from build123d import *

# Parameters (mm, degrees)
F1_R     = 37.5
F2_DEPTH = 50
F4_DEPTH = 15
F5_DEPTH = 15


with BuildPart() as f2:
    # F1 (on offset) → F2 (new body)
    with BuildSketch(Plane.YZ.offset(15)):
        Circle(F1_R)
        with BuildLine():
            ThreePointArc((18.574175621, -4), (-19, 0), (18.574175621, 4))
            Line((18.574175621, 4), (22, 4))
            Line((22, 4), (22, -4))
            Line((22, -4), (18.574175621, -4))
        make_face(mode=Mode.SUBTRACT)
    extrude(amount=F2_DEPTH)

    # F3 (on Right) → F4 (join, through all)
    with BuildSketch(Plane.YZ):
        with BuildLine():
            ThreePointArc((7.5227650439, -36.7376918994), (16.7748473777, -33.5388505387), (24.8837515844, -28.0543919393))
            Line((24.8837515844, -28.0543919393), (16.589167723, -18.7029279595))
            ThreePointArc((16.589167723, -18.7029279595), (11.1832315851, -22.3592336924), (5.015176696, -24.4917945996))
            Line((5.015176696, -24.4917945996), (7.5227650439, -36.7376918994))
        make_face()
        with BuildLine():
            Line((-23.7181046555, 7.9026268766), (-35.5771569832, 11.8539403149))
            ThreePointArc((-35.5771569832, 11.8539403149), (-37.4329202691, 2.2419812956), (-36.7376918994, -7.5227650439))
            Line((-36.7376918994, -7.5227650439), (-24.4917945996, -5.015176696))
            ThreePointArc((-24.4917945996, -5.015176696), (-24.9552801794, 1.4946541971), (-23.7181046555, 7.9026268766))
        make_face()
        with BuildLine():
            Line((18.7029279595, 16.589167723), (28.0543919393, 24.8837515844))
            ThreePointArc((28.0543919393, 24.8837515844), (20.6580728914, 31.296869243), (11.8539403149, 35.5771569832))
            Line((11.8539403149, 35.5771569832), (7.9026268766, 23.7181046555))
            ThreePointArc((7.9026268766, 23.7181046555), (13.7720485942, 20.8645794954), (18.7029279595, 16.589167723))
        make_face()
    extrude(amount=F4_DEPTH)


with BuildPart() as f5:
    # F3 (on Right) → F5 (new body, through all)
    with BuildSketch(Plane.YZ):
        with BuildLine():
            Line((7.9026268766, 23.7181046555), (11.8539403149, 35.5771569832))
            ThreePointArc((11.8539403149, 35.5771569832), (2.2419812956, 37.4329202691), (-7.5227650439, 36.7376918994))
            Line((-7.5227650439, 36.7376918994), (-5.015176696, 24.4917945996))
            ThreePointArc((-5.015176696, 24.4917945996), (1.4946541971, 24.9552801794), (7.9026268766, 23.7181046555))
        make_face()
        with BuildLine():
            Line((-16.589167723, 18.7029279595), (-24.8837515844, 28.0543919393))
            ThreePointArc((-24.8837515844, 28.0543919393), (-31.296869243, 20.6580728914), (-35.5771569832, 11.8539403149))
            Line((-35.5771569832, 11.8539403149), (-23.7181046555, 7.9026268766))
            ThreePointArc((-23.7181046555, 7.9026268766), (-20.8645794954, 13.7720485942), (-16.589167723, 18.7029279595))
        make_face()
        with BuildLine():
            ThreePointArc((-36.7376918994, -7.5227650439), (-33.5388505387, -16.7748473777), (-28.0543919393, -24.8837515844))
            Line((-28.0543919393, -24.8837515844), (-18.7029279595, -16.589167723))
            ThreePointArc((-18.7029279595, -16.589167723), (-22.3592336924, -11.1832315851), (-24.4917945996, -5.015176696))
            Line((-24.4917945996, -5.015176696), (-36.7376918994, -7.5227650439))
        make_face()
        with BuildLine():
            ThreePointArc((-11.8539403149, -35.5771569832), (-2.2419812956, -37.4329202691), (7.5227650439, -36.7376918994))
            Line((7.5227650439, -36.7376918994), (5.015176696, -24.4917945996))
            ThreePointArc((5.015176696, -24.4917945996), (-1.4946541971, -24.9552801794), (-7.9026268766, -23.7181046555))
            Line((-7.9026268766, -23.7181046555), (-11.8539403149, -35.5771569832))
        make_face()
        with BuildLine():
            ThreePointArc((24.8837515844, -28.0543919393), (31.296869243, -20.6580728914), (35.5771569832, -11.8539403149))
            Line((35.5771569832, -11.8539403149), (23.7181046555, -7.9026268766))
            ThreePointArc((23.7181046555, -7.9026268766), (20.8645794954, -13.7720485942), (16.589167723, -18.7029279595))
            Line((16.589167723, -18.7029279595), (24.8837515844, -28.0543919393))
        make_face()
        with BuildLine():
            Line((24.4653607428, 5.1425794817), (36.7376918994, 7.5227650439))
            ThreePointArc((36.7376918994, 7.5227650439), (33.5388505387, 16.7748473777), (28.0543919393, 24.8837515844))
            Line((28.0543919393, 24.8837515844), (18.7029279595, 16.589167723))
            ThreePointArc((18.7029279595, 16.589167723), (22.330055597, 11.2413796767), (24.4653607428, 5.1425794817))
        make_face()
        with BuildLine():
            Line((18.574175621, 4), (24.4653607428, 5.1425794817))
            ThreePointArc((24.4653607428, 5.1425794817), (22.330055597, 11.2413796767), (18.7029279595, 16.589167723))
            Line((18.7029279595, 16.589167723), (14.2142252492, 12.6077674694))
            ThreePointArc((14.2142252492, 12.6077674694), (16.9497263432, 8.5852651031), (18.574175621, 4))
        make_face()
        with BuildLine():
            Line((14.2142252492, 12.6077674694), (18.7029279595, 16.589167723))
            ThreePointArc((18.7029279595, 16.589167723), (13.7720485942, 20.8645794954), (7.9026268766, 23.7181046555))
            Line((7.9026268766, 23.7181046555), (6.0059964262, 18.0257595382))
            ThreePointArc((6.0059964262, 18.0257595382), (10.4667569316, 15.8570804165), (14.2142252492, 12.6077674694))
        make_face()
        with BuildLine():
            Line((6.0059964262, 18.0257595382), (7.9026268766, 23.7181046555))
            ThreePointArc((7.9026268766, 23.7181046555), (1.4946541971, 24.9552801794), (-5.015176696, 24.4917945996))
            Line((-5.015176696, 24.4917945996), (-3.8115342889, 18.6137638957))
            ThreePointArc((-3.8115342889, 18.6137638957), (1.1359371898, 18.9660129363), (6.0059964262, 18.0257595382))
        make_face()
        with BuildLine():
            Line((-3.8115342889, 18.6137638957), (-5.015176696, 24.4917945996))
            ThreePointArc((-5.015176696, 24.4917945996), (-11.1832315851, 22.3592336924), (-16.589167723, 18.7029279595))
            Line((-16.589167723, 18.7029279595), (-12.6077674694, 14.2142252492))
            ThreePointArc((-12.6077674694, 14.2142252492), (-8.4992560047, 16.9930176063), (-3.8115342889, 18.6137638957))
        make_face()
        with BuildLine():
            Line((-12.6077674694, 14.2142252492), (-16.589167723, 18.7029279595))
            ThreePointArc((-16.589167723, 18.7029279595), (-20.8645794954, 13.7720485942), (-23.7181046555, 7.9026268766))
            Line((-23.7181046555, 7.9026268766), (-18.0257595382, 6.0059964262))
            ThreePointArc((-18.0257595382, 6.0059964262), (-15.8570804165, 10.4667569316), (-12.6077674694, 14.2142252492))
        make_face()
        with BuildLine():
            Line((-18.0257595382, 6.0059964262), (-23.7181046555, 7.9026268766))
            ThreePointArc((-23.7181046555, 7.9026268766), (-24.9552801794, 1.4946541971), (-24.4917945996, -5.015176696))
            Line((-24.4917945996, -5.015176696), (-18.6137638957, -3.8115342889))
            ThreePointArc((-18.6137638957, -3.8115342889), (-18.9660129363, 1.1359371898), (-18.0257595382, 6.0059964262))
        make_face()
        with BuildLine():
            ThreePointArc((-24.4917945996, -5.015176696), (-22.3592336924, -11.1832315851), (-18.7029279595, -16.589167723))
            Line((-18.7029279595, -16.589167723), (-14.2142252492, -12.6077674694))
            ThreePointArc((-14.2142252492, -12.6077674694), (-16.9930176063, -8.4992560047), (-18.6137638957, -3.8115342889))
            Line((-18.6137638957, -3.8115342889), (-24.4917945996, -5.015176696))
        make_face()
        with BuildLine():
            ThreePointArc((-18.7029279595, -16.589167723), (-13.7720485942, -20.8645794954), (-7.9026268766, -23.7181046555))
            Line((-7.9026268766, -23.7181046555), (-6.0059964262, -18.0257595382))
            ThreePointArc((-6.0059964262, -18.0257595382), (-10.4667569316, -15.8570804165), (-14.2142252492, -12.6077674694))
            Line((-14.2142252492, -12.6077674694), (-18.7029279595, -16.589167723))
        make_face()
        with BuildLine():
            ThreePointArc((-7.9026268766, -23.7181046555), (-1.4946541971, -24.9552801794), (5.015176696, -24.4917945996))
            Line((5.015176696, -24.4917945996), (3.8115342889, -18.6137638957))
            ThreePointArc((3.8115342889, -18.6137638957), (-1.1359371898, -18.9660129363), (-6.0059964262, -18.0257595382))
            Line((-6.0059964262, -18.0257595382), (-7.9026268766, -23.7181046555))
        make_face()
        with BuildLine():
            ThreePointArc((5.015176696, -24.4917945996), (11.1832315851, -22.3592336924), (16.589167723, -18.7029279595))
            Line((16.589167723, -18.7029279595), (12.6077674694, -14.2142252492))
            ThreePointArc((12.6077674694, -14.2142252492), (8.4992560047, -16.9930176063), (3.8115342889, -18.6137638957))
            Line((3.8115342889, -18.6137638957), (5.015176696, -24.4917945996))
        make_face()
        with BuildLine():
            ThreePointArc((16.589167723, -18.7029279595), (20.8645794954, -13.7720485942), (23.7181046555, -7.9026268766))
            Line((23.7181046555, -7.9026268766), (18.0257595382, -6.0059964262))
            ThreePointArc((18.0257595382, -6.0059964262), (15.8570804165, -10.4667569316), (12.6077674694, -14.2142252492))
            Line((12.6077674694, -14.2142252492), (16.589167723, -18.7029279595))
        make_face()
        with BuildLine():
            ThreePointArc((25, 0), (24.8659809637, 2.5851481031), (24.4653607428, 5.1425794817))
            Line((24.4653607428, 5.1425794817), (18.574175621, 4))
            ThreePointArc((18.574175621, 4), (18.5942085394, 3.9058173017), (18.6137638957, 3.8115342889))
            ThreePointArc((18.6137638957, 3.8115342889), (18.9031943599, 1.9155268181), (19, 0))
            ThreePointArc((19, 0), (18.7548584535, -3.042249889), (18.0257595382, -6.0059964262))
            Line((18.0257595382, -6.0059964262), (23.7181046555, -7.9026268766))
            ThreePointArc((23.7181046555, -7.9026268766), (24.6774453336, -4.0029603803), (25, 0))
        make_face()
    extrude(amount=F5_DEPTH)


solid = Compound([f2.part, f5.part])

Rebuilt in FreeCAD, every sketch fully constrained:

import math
import FreeCAD as App
import Part
import Sketcher

doc = App.newDocument("Part")
body = doc.addObject("PartDesign::Body", "Body")

sketch1 = body.newObject("Sketcher::SketchObject", "Sketch")
sketch1.AttachmentSupport = (doc.getObject("YZ_Plane"), [""])
sketch1.MapMode = "FlatFace"
sketch1.AttachmentOffset = App.Placement(App.Vector(0, 0, 15), App.Rotation())
sketch1.addGeometry([
    Part.Circle(App.Vector(0, 0, 0), App.Vector(0, 0, 1), 37.5),
    Part.LineSegment(App.Vector(22, -4, 0), App.Vector(18.6, -4, 0)),
    Part.ArcOfCircle(Part.Circle(App.Vector(0, 0, 0), App.Vector(0, 0, 1), 19), math.radians(12), math.radians(348)),
    Part.LineSegment(App.Vector(18.6, 4, 0), App.Vector(22, 4, 0)),
    Part.LineSegment(App.Vector(22, 4, 0), App.Vector(22, -4, 0)),
], False)
sketch1.addConstraint([
    Sketcher.Constraint("Coincident", 1, 2, 2, 2),
    Sketcher.Constraint("Coincident", 2, 1, 3, 1),
    Sketcher.Constraint("Coincident", 3, 2, 4, 1),
    Sketcher.Constraint("Coincident", 4, 2, 1, 1),
    Sketcher.Constraint("Horizontal", 1),
    Sketcher.Constraint("Horizontal", 3),
    Sketcher.Constraint("Vertical", 4),
    Sketcher.Constraint("Coincident", 0, 3, -1, 1),
    Sketcher.Constraint("Coincident", 2, 3, -1, 1),
    Sketcher.Constraint("Vertical", 1, 2, 2, 1),
    Sketcher.Constraint("Diameter", 0, 75.0),
    Sketcher.Constraint("Radius", 2, 19.0),
    Sketcher.Constraint("DistanceY", 4, 2, 4, 1, 8.0),
    Sketcher.Constraint("DistanceX", -1, 1, 3, 2, 22.0),
])
pad1 = body.newObject("PartDesign::Pad", "Pad")
pad1.Profile = sketch1
pad1.Length = 50

sketch2 = body.newObject("Sketcher::SketchObject", "Sketch001")
sketch2.AttachmentSupport = (doc.getObject("YZ_Plane"), [""])
sketch2.MapMode = "FlatFace"
sketch2.addGeometry([
    Part.ArcOfCircle(Part.Circle(App.Vector(0, 0, 0), App.Vector(0, 0, 1), 37), math.radians(-78), math.radians(-48)),
    Part.LineSegment(App.Vector(25, -28, 0), App.Vector(17, -19, 0)),
    Part.ArcOfCircle(Part.Circle(App.Vector(0, 0, 0), App.Vector(0, 0, 1), 25), math.radians(-78), math.radians(-48)),
    Part.LineSegment(App.Vector(5, -24, 0), App.Vector(8, -37, 0)),
    Part.LineSegment(App.Vector(-24, 8, 0), App.Vector(-36, 12, 0)),
    Part.ArcOfCircle(Part.Circle(App.Vector(0, 0, 0), App.Vector(0, 0, 1), 37), math.radians(162), math.radians(192)),
    Part.LineSegment(App.Vector(-37, -8, 0), App.Vector(-24, -5, 0)),
    Part.ArcOfCircle(Part.Circle(App.Vector(0, 0, 0), App.Vector(0, 0, 1), 25), math.radians(162), math.radians(192)),
    Part.LineSegment(App.Vector(19, 17, 0), App.Vector(28, 25, 0)),
    Part.ArcOfCircle(Part.Circle(App.Vector(0, 0, 0), App.Vector(0, 0, 1), 37), math.radians(42), math.radians(72)),
    Part.LineSegment(App.Vector(12, 36, 0), App.Vector(8, 24, 0)),
    Part.ArcOfCircle(Part.Circle(App.Vector(0, 0, 0), App.Vector(0, 0, 1), 25), math.radians(42), math.radians(72)),
], False)
sketch2.addConstraint([
    Sketcher.Constraint("Coincident", 0, 2, 1, 1),
    Sketcher.Constraint("Coincident", 1, 2, 2, 2),
    Sketcher.Constraint("Coincident", 2, 1, 3, 1),
    Sketcher.Constraint("Coincident", 3, 2, 0, 1),
    Sketcher.Constraint("Coincident", 4, 2, 5, 1),
    Sketcher.Constraint("Coincident", 5, 2, 6, 1),
    Sketcher.Constraint("Coincident", 6, 2, 7, 2),
    Sketcher.Constraint("Coincident", 7, 1, 4, 1),
    Sketcher.Constraint("Coincident", 8, 2, 9, 1),
    Sketcher.Constraint("Coincident", 9, 2, 10, 1),
    Sketcher.Constraint("Coincident", 10, 2, 11, 2),
    Sketcher.Constraint("Coincident", 11, 1, 8, 1),
    Sketcher.Constraint("Coincident", 0, 3, -1, 1),
    Sketcher.Constraint("Coincident", 2, 3, -1, 1),
    Sketcher.Constraint("Coincident", 5, 3, -1, 1),
    Sketcher.Constraint("Coincident", 7, 3, -1, 1),
    Sketcher.Constraint("Coincident", 9, 3, -1, 1),
    Sketcher.Constraint("Coincident", 11, 3, -1, 1),
    Sketcher.Constraint("Equal", 0, 5),
    Sketcher.Constraint("Equal", 2, 7),
    Sketcher.Constraint("Equal", 5, 9),
    Sketcher.Constraint("Equal", 7, 11),
    Sketcher.Constraint("Perpendicular", 3, 6),
    Sketcher.Constraint("Perpendicular", 1, 8),
    Sketcher.Constraint("Perpendicular", 4, 10),
    Sketcher.Constraint("Radius", 2, 25.0),
    Sketcher.Constraint("Radius", 0, 37.5),
    Sketcher.Constraint("DistanceY", 3, 2, 0, 2, 8.6833),
    Sketcher.Constraint("DistanceX", 10, 2, 11, 1, 10.800301),
    Sketcher.Constraint("DistanceX", -1, 1, 0, 2, 24.883752),
    Sketcher.Constraint("DistanceY", -1, 1, 4, 2, 11.85394),
    Sketcher.Constraint("DistanceX", 5, 2, -1, 1, 36.737692),
    Sketcher.Constraint("DistanceX", -1, 1, 8, 2, 28.054392),
    Sketcher.Constraint("DistanceX", -1, 1, 9, 2, 11.85394),
    Sketcher.Constraint("DistanceX", 2, 1, 1, 2, 11.573991),
    Sketcher.Constraint("DistanceX", 2, 1, 3, 2, 2.507588),
])
pad2 = body.newObject("PartDesign::Pad", "Pad001")
pad2.Profile = sketch2
pad2.Length = 15
body2 = doc.addObject("PartDesign::Body", "Body001")

sketch3 = body2.newObject("Sketcher::SketchObject", "Sketch002")
sketch3.AttachmentSupport = (doc.getObject("YZ_Plane001"), [""])
sketch3.MapMode = "FlatFace"
sketch3.addGeometry([
    Part.LineSegment(App.Vector(7.9, 23.72, 0), App.Vector(11.85, 35.58, 0)),
    Part.ArcOfCircle(Part.Circle(App.Vector(0, 0, 0), App.Vector(0, 0, 1), 37.5), math.radians(72), math.radians(102)),
    Part.LineSegment(App.Vector(-7.52, 36.74, 0), App.Vector(-5.02, 24.49, 0)),
    Part.ArcOfCircle(Part.Circle(App.Vector(0, 0, 0), App.Vector(0, 0, 1), 25), math.radians(102), math.radians(132)),
    Part.LineSegment(App.Vector(-16.59, 18.7, 0), App.Vector(-24.88, 28.05, 0)),
    Part.ArcOfCircle(Part.Circle(App.Vector(0, 0, 0), App.Vector(0, 0, 1), 37.5), math.radians(132), math.radians(162)),
    Part.LineSegment(App.Vector(-35.58, 11.85, 0), App.Vector(-23.72, 7.9, 0)),
    Part.ArcOfCircle(Part.Circle(App.Vector(0, 0, 0), App.Vector(0, 0, 1), 25), math.radians(162), math.radians(192)),
    Part.LineSegment(App.Vector(-24.49, -5.02, 0), App.Vector(-36.74, -7.52, 0)),
    Part.ArcOfCircle(Part.Circle(App.Vector(0, 0, 0), App.Vector(0, 0, 1), 37.5), math.radians(-168), math.radians(-138)),
    Part.LineSegment(App.Vector(-28.05, -24.88, 0), App.Vector(-18.7, -16.59, 0)),
    Part.ArcOfCircle(Part.Circle(App.Vector(0, 0, 0), App.Vector(0, 0, 1), 25), math.radians(-138), math.radians(-108)),
    Part.LineSegment(App.Vector(-7.9, -23.72, 0), App.Vector(-11.85, -35.58, 0)),
    Part.ArcOfCircle(Part.Circle(App.Vector(0, 0, 0), App.Vector(0, 0, 1), 37.5), math.radians(-108), math.radians(-78)),
    Part.LineSegment(App.Vector(7.52, -36.74, 0), App.Vector(5.02, -24.49, 0)),
    Part.ArcOfCircle(Part.Circle(App.Vector(0, 0, 0), App.Vector(0, 0, 1), 25), math.radians(-78), math.radians(-48)),
    Part.LineSegment(App.Vector(16.59, -18.7, 0), App.Vector(24.88, -28.05, 0)),
    Part.ArcOfCircle(Part.Circle(App.Vector(0, 0, 0), App.Vector(0, 0, 1), 37.5), math.radians(-48), math.radians(-18)),
    Part.LineSegment(App.Vector(35.58, -11.85, 0), App.Vector(23.72, -7.9, 0)),
    Part.ArcOfCircle(Part.Circle(App.Vector(0, 0, 0), App.Vector(0, 0, 1), 25), math.radians(-18.43), math.radians(0)),
    Part.ArcOfCircle(Part.Circle(App.Vector(0, 0, 0), App.Vector(0, 0, 1), 25), math.radians(0), math.radians(11.87)),
    Part.LineSegment(App.Vector(24.47, 5.14, 0), App.Vector(36.74, 7.52, 0)),
    Part.ArcOfCircle(Part.Circle(App.Vector(0, 0, 0), App.Vector(0, 0, 1), 37.5), math.radians(12), math.radians(42)),
    Part.LineSegment(App.Vector(28.05, 24.88, 0), App.Vector(18.7, 16.59, 0)),
    Part.ArcOfCircle(Part.Circle(App.Vector(0, 0, 0), App.Vector(0, 0, 1), 25), math.radians(42), math.radians(72)),
    Part.ArcOfCircle(Part.Circle(App.Vector(0, 0, 0), App.Vector(0, 0, 1), 19), math.radians(-48), math.radians(-18)),
    Part.ArcOfCircle(Part.Circle(App.Vector(0, 0, 0), App.Vector(0, 0, 1), 19), math.radians(-78), math.radians(-48)),
    Part.ArcOfCircle(Part.Circle(App.Vector(0, 0, 0), App.Vector(0, 0, 1), 19), math.radians(-108), math.radians(-78)),
    Part.ArcOfCircle(Part.Circle(App.Vector(0, 0, 0), App.Vector(0, 0, 1), 19), math.radians(-138), math.radians(-108)),
    Part.ArcOfCircle(Part.Circle(App.Vector(0, 0, 0), App.Vector(0, 0, 1), 19), math.radians(-168), math.radians(-138)),
    Part.ArcOfCircle(Part.Circle(App.Vector(0, 0, 0), App.Vector(0, 0, 1), 19), math.radians(162), math.radians(192)),
    Part.ArcOfCircle(Part.Circle(App.Vector(0, 0, 0), App.Vector(0, 0, 1), 19), math.radians(132), math.radians(162)),
    Part.ArcOfCircle(Part.Circle(App.Vector(0, 0, 0), App.Vector(0, 0, 1), 19), math.radians(102), math.radians(132)),
    Part.ArcOfCircle(Part.Circle(App.Vector(0, 0, 0), App.Vector(0, 0, 1), 19), math.radians(72), math.radians(102)),
    Part.ArcOfCircle(Part.Circle(App.Vector(0, 0, 0), App.Vector(0, 0, 1), 19), math.radians(42), math.radians(72)),
    Part.ArcOfCircle(Part.Circle(App.Vector(0, 0, 0), App.Vector(0, 0, 1), 19), math.radians(12), math.radians(42)),
    Part.ArcOfCircle(Part.Circle(App.Vector(0, 0, 0), App.Vector(0, 0, 1), 19), math.radians(11.57), math.radians(12.15)),
    Part.ArcOfCircle(Part.Circle(App.Vector(0, 0, 0), App.Vector(0, 0, 1), 19), math.radians(0), math.radians(11.57)),
    Part.ArcOfCircle(Part.Circle(App.Vector(0, 0, 0), App.Vector(0, 0, 1), 19), math.radians(-18.43), math.radians(0)),
], False)
sketch3.addConstraint([
    Sketcher.Constraint("Coincident", 0, 2, 1, 1),
    Sketcher.Constraint("Coincident", 1, 2, 2, 1),
    Sketcher.Constraint("Coincident", 2, 2, 3, 1),
    Sketcher.Constraint("Coincident", 3, 2, 4, 1),
    Sketcher.Constraint("Coincident", 4, 2, 5, 1),
    Sketcher.Constraint("Coincident", 5, 2, 6, 1),
    Sketcher.Constraint("Coincident", 6, 2, 7, 1),
    Sketcher.Constraint("Coincident", 7, 2, 8, 1),
    Sketcher.Constraint("Coincident", 8, 2, 9, 1),
    Sketcher.Constraint("Coincident", 9, 2, 10, 1),
    Sketcher.Constraint("Coincident", 10, 2, 11, 1),
    Sketcher.Constraint("Coincident", 11, 2, 12, 1),
    Sketcher.Constraint("Coincident", 12, 2, 13, 1),
    Sketcher.Constraint("Coincident", 13, 2, 14, 1),
    Sketcher.Constraint("Coincident", 14, 2, 15, 1),
    Sketcher.Constraint("Coincident", 15, 2, 16, 1),
    Sketcher.Constraint("Coincident", 16, 2, 17, 1),
    Sketcher.Constraint("Coincident", 17, 2, 18, 1),
    Sketcher.Constraint("Coincident", 18, 2, 19, 1),
    Sketcher.Constraint("Tangent", 19, 2, 20, 1),
    Sketcher.Constraint("Coincident", 20, 2, 21, 1),
    Sketcher.Constraint("Coincident", 21, 2, 22, 1),
    Sketcher.Constraint("Coincident", 22, 2, 23, 1),
    Sketcher.Constraint("Coincident", 23, 2, 24, 1),
    Sketcher.Constraint("Coincident", 24, 2, 0, 1),
    Sketcher.Constraint("Tangent", 25, 1, 26, 2),
    Sketcher.Constraint("Tangent", 26, 1, 27, 2),
    Sketcher.Constraint("Tangent", 27, 1, 28, 2),
    Sketcher.Constraint("Tangent", 28, 1, 29, 2),
    Sketcher.Constraint("Tangent", 29, 1, 30, 2),
    Sketcher.Constraint("Tangent", 30, 1, 31, 2),
    Sketcher.Constraint("Tangent", 31, 1, 32, 2),
    Sketcher.Constraint("Tangent", 32, 1, 33, 2),
    Sketcher.Constraint("Tangent", 33, 1, 34, 2),
    Sketcher.Constraint("Tangent", 34, 1, 35, 2),
    Sketcher.Constraint("Tangent", 35, 1, 36, 2),
    Sketcher.Constraint("Tangent", 36, 1, 37, 2),
    Sketcher.Constraint("Tangent", 37, 1, 38, 2),
    Sketcher.Constraint("Tangent", 38, 1, 25, 2),
    Sketcher.Constraint("Coincident", 1, 3, -1, 1),
    Sketcher.Constraint("Coincident", 3, 3, -1, 1),
    Sketcher.Constraint("Coincident", 5, 3, -1, 1),
    Sketcher.Constraint("Coincident", 7, 3, -1, 1),
    Sketcher.Constraint("Coincident", 9, 3, -1, 1),
    Sketcher.Constraint("Coincident", 11, 3, -1, 1),
    Sketcher.Constraint("Coincident", 13, 3, -1, 1),
    Sketcher.Constraint("Coincident", 15, 3, -1, 1),
    Sketcher.Constraint("Coincident", 17, 3, -1, 1),
    Sketcher.Constraint("Coincident", 19, 3, -1, 1),
    Sketcher.Constraint("Coincident", 22, 3, -1, 1),
    Sketcher.Constraint("Coincident", 24, 3, -1, 1),
    Sketcher.Constraint("Coincident", 25, 3, -1, 1),
    Sketcher.Constraint("Coincident", 27, 3, -1, 1),
    Sketcher.Constraint("Coincident", 29, 3, -1, 1),
    Sketcher.Constraint("Coincident", 31, 3, -1, 1),
    Sketcher.Constraint("Coincident", 33, 3, -1, 1),
    Sketcher.Constraint("Coincident", 35, 3, -1, 1),
    Sketcher.Constraint("Equal", 1, 5),
    Sketcher.Constraint("Equal", 3, 7),
    Sketcher.Constraint("Equal", 5, 9),
    Sketcher.Constraint("Equal", 7, 11),
    Sketcher.Constraint("Equal", 9, 13),
    Sketcher.Constraint("Equal", 11, 15),
    Sketcher.Constraint("Equal", 13, 17),
    Sketcher.Constraint("Equal", 15, 19),
    Sketcher.Constraint("Equal", 19, 20),
    Sketcher.Constraint("Equal", 17, 22),
    Sketcher.Constraint("Equal", 20, 24),
    Sketcher.Constraint("Equal", 35, 36),
    Sketcher.Constraint("PointOnObject", 19, 2, -1),
    Sketcher.Constraint("PointOnObject", 37, 1, -1),
    Sketcher.Constraint("Perpendicular", 0, 6),
    Sketcher.Constraint("Perpendicular", 2, 8),
    Sketcher.Constraint("Perpendicular", 4, 10),
    Sketcher.Constraint("Perpendicular", 6, 12),
    Sketcher.Constraint("Perpendicular", 8, 14),
    Sketcher.Constraint("Perpendicular", 10, 16),
    Sketcher.Constraint("Perpendicular", 12, 18),
    Sketcher.Constraint("Perpendicular", 16, 23),
    Sketcher.Constraint("Radius", 3, 25.0),
    Sketcher.Constraint("Radius", 25, 19.0),
    Sketcher.Constraint("Radius", 1, 37.5),
    Sketcher.Constraint("DistanceY", -1, 1, 35, 1, 4.0),
    Sketcher.Constraint("DistanceX", -1, 1, 0, 2, 11.85394),
    Sketcher.Constraint("DistanceY", -1, 1, 1, 2, 36.737692),
    Sketcher.Constraint("DistanceX", 4, 2, -1, 1, 24.883752),
    Sketcher.Constraint("DistanceY", -1, 1, 5, 2, 11.85394),
    Sketcher.Constraint("DistanceX", 8, 2, -1, 1, 36.737692),
    Sketcher.Constraint("DistanceX", 9, 2, -1, 1, 28.054392),
    Sketcher.Constraint("DistanceX", 12, 2, -1, 1, 11.85394),
    Sketcher.Constraint("DistanceY", 13, 2, -1, 1, 36.737692),
    Sketcher.Constraint("DistanceX", -1, 1, 16, 2, 24.883752),
    Sketcher.Constraint("DistanceY", 17, 2, -1, 1, 11.85394),
    Sketcher.Constraint("DistanceX", -1, 1, 20, 2, 24.465361),
    Sketcher.Constraint("DistanceX", -1, 1, 21, 2, 36.737692),
    Sketcher.Constraint("DistanceX", -1, 1, 22, 2, 28.054392),
    Sketcher.Constraint("DistanceY", 27, 1, -1, 1, 18.02576),
    Sketcher.Constraint("DistanceX", 30, 1, -1, 1, 18.02576),
    Sketcher.Constraint("DistanceY", -1, 1, 33, 1, 18.02576),
    Sketcher.Constraint("DistanceX", -1, 1, 38, 1, 18.02576),
    Sketcher.Constraint("DistanceX", 2, 2, -1, 1, 5.015177),
    Sketcher.Constraint("DistanceX", 3, 2, -1, 1, 16.589168),
    Sketcher.Constraint("DistanceX", 6, 2, -1, 1, 23.718105),
    Sketcher.Constraint("DistanceX", -1, 1, 25, 1, 12.607767),
    Sketcher.Constraint("DistanceX", -1, 1, 26, 1, 3.811534),
    Sketcher.Constraint("DistanceX", 28, 1, -1, 1, 14.214225),
    Sketcher.Constraint("DistanceX", 29, 1, -1, 1, 18.613764),
    Sketcher.Constraint("DistanceX", 31, 1, -1, 1, 12.607767),
    Sketcher.Constraint("DistanceX", 32, 1, -1, 1, 3.811534),
    Sketcher.Constraint("DistanceX", -1, 1, 34, 1, 14.214225),
    Sketcher.Constraint("DistanceX", -1, 1, 36, 1, 18.613764),
])
pad3 = body2.newObject("PartDesign::Pad", "Pad002")
pad3.Profile = sketch3
pad3.Length = 15

doc.recompute()
